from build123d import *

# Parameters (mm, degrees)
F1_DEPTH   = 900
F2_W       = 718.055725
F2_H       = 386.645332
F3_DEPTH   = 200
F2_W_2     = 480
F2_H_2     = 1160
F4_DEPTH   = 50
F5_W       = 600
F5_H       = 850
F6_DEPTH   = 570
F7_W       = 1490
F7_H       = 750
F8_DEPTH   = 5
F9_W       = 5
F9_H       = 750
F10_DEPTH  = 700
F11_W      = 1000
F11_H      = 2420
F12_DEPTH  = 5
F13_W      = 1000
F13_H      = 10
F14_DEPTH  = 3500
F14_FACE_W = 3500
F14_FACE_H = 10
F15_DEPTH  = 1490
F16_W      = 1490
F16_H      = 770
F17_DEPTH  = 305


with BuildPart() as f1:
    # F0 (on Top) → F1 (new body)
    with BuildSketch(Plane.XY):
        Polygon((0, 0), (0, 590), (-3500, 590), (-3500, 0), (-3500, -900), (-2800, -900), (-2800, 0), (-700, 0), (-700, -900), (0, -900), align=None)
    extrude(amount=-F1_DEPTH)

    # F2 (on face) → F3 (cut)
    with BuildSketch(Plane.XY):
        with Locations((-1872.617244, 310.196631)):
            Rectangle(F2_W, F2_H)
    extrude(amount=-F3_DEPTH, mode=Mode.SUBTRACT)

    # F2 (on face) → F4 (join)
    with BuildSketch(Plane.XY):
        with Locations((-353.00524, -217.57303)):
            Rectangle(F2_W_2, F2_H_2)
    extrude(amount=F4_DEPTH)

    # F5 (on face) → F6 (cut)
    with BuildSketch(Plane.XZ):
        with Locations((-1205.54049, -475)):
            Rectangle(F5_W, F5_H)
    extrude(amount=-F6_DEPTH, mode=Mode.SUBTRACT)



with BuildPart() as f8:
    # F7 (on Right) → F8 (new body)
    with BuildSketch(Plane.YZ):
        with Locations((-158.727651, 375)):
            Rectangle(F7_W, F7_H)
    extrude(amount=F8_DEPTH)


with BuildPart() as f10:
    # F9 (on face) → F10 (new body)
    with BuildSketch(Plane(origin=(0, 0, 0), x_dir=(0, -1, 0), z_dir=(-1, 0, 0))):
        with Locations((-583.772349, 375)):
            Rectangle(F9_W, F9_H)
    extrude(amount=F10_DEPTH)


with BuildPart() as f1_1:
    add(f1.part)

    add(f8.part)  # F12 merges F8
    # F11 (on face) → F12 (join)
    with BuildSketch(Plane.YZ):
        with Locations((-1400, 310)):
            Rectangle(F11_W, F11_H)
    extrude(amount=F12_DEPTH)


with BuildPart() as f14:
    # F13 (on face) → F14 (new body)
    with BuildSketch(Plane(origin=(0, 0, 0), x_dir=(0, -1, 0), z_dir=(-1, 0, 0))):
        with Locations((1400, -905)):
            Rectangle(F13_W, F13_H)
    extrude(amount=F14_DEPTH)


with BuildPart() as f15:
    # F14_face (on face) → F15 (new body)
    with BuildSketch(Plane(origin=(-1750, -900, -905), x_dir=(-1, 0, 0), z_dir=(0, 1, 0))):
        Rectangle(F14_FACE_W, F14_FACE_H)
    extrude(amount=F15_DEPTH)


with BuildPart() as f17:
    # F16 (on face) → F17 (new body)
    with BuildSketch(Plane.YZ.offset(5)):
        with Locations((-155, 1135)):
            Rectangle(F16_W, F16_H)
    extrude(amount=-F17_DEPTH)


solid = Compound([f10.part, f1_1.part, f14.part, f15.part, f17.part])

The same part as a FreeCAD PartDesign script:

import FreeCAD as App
import Part
import Sketcher

doc = App.newDocument("Part")
params = doc.addObject("Spreadsheet::Sheet", "Params")
for row, (alias, value) in enumerate([
    ("sketch1_width", "3500 mm"),
    ("sketch1_width2", "700 mm"),
    ("sketch1_height", "1490 mm"),
    ("sketch1_height2", "900 mm"),
    ("pad1_length", "900 mm"),
    ("pocket1_length", "200 mm"),
    ("sketch3_width", "480 mm"),
    ("sketch3_height", "1160 mm"),
    ("pad2_length", "50 mm"),
    ("sketch4_width", "600 mm"),
    ("sketch4_height", "850 mm"),
    ("pocket2_length", "570 mm"),
    ("sketch5_width", "1490 mm"),
    ("sketch5_height", "750 mm"),
    ("pad3_length", "5 mm"),
    ("sketch6_width", "5 mm"),
    ("sketch6_height", "750 mm"),
    ("pad4_length", "700 mm"),
    ("sketch7_width", "1000 mm"),
    ("sketch7_height", "2420 mm"),
    ("pad5_length", "5 mm"),
    ("sketch8_width", "1000 mm"),
    ("sketch8_height", "10 mm"),
    ("pad6_length", "3500 mm"),
    ("sketch9_width", "3500 mm"),
    ("sketch9_height", "10 mm"),
    ("pad7_length", "1490 mm"),
    ("sketch10_width", "1490 mm"),
    ("sketch10_height", "770 mm"),
    ("pad8_length", "305 mm"),
], start=1):
    params.set(f"A{row}", alias)
    params.set(f"B{row}", "=" + value)
    params.setAlias(f"B{row}", alias)

body = doc.addObject("PartDesign::Body", "Body")

sketch1 = doc.addObject("Sketcher::SketchObject", "Sketch")
body.addObject(sketch1)
sketch1.AttachmentSupport = (doc.XY_Plane, [""])
sketch1.MapMode = "FlatFace"
sketch1.addGeometry([
    Part.LineSegment(App.Vector(0, 590, 0), App.Vector(-3500, 590, 0)),
    Part.LineSegment(App.Vector(-3500, 590, 0), App.Vector(-3500, -900, 0)),
    Part.LineSegment(App.Vector(-3500, -900, 0), App.Vector(-2800, -900, 0)),
    Part.LineSegment(App.Vector(-2800, -900, 0), App.Vector(-2800, 0, 0)),
    Part.LineSegment(App.Vector(-2800, 0, 0), App.Vector(-700, 0, 0)),
    Part.LineSegment(App.Vector(-700, 0, 0), App.Vector(-700, -900, 0)),
    Part.LineSegment(App.Vector(-700, -900, 0), App.Vector(0, -900, 0)),
    Part.LineSegment(App.Vector(0, -900, 0), App.Vector(0, 590, 0)),
], False)
sketch1.addConstraint([
    Sketcher.Constraint("Coincident", 0, 2, 1, 1),
    Sketcher.Constraint("Coincident", 1, 2, 2, 1),
    Sketcher.Constraint("Coincident", 2, 2, 3, 1),
    Sketcher.Constraint("Coincident", 3, 2, 4, 1),
    Sketcher.Constraint("Coincident", 4, 2, 5, 1),
    Sketcher.Constraint("Coincident", 5, 2, 6, 1),
    Sketcher.Constraint("Coincident", 6, 2, 7, 1),
    Sketcher.Constraint("Coincident", 7, 2, 0, 1),
    Sketcher.Constraint("Horizontal", 0),
    Sketcher.Constraint("Vertical", 1),
    Sketcher.Constraint("Horizontal", 2),
    Sketcher.Constraint("Vertical", 3),
    Sketcher.Constraint("Horizontal", 4),
    Sketcher.Constraint("Vertical", 5),
    Sketcher.Constraint("Horizontal", 6),
    Sketcher.Constraint("Vertical", 7),
    Sketcher.Constraint("PointOnObject", 3, 2, -1),
    Sketcher.Constraint("PointOnObject", 6, 2, -2),
    Sketcher.Constraint("Horizontal", 2, 2, 5, 2),
    Sketcher.Constraint("Equal", 2, 6),
    Sketcher.Constraint("DistanceX", 0, 2, 0, 1, 3500.0),
    Sketcher.Constraint("DistanceX", 2, 1, 2, 2, 700.0),
    Sketcher.Constraint("DistanceY", 1, 2, 1, 1, 1490.0),
    Sketcher.Constraint("DistanceY", 3, 1, 3, 2, 900.0),
])
sketch1.setExpression("Constraints[20]", "Params.sketch1_width")
sketch1.setExpression("Constraints[21]", "Params.sketch1_width2")
sketch1.setExpression("Constraints[22]", "Params.sketch1_height")
sketch1.setExpression("Constraints[23]", "Params.sketch1_height2")
pad1 = doc.addObject("PartDesign::Pad", "Pad")
body.addObject(pad1)
pad1.Profile = sketch1
pad1.setExpression("Length", "Params.pad1_length")
pad1.Reversed = True

sketch2 = doc.addObject("Sketcher::SketchObject", "Sketch001")
body.addObject(sketch2)
sketch2.AttachmentSupport = (doc.XY_Plane, [""])
sketch2.MapMode = "FlatFace"
sketch2.addGeometry([
    Part.LineSegment(App.Vector(-2232, 504, 0), App.Vector(-2232, 117, 0)),
    Part.LineSegment(App.Vector(-2232, 117, 0), App.Vector(-1514, 117, 0)),
    Part.LineSegment(App.Vector(-1514, 117, 0), App.Vector(-1514, 504, 0)),
    Part.LineSegment(App.Vector(-1514, 504, 0), App.Vector(-2232, 504, 0)),
], False)
sketch2.addConstraint([
    Sketcher.Constraint("Coincident", 0, 2, 1, 1),
    Sketcher.Constraint("Coincident", 1, 2, 2, 1),
    Sketcher.Constraint("Coincident", 2, 2, 3, 1),
    Sketcher.Constraint("Coincident", 3, 2, 0, 1),
    Sketcher.Constraint("Vertical", 0),
    Sketcher.Constraint("Horizontal", 1),
    Sketcher.Constraint("Vertical", 2),
    Sketcher.Constraint("Horizontal", 3),
    Sketcher.Constraint("DistanceY", 0, 2, 0, 1, 386.645332),
    Sketcher.Constraint("DistanceX", 1, 1, 1, 2, 718.055725),
    Sketcher.Constraint("DistanceX", 1, 2, -1, 1, 1513.589381),
    Sketcher.Constraint("DistanceY", -1, 1, 0, 2, 116.873965),
])
pocket1 = doc.addObject("PartDesign::Pocket", "Pocket")
body.addObject(pocket1)
pocket1.Profile = sketch2
pocket1.setExpression("Length", "Params.pocket1_length")

sketch3 = doc.addObject("Sketcher::SketchObject", "Sketch002")
body.addObject(sketch3)
sketch3.AttachmentSupport = (doc.XY_Plane, [""])
sketch3.MapMode = "FlatFace"
sketch3.addGeometry([
    Part.LineSegment(App.Vector(-593, 362, 0), App.Vector(-593, -798, 0)),
    Part.LineSegment(App.Vector(-593, -798, 0), App.Vector(-113, -798, 0)),
    Part.LineSegment(App.Vector(-113, -798, 0), App.Vector(-113, 362, 0)),
    Part.LineSegment(App.Vector(-113, 362, 0), App.Vector(-593, 362, 0)),
], False)
sketch3.addConstraint([
    Sketcher.Constraint("Coincident", 0, 2, 1, 1),
    Sketcher.Constraint("Coincident", 1, 2, 2, 1),
    Sketcher.Constraint("Coincident", 2, 2, 3, 1),
    Sketcher.Constraint("Coincident", 3, 2, 0, 1),
    Sketcher.Constraint("Vertical", 0),
    Sketcher.Constraint("Horizontal", 1),
    Sketcher.Constraint("Vertical", 2),
    Sketcher.Constraint("Horizontal", 3),
    Sketcher.Constraint("DistanceX", 1, 1, 1, 2, 480.0),
    Sketcher.Constraint("DistanceY", 0, 2, 0, 1, 1160.0),
    Sketcher.Constraint("DistanceX", 0, 2, -1, 1, 593.00524),
    Sketcher.Constraint("DistanceY", 0, 2, -1, 1, 797.57303),
])
sketch3.setExpression("Constraints[8]", "Params.sketch3_width")
sketch3.setExpression("Constraints[9]", "Params.sketch3_height")
pad2 = doc.addObject("PartDesign::Pad", "Pad001")
body.addObject(pad2)
pad2.Profile = sketch3
pad2.setExpression("Length", "Params.pad2_length")

sketch4 = doc.addObject("Sketcher::SketchObject", "Sketch003")
body.addObject(sketch4)
sketch4.AttachmentSupport = (doc.XZ_Plane, [""])
sketch4.MapMode = "FlatFace"
sketch4.addGeometry([
    Part.LineSegment(App.Vector(-1506, -50, 0), App.Vector(-1506, -900, 0)),
    Part.LineSegment(App.Vector(-1506, -900, 0), App.Vector(-906, -900, 0)),
    Part.LineSegment(App.Vector(-906, -900, 0), App.Vector(-906, -50, 0)),
    Part.LineSegment(App.Vector(-906, -50, 0), App.Vector(-1506, -50, 0)),
], False)
sketch4.addConstraint([
    Sketcher.Constraint("Coincident", 0, 2, 1, 1),
    Sketcher.Constraint("Coincident", 1, 2, 2, 1),
    Sketcher.Constraint("Coincident", 2, 2, 3, 1),
    Sketcher.Constraint("Coincident", 3, 2, 0, 1),
    Sketcher.Constraint("Vertical", 0),
    Sketcher.Constraint("Horizontal", 1),
    Sketcher.Constraint("Vertical", 2),
    Sketcher.Constraint("Horizontal", 3),
    Sketcher.Constraint("DistanceX", 1, 1, 1, 2, 600.0),
    Sketcher.Constraint("DistanceY", 0, 2, 0, 1, 850.0),
    Sketcher.Constraint("DistanceY", 0, 2, -1, 1, 900.0),
    Sketcher.Constraint("DistanceX", 0, 2, -1, 1, 1505.54049),
])
sketch4.setExpression("Constraints[8]", "Params.sketch4_width")
sketch4.setExpression("Constraints[9]", "Params.sketch4_height")
pocket2 = doc.addObject("PartDesign::Pocket", "Pocket001")
body.addObject(pocket2)
pocket2.Profile = sketch4
pocket2.setExpression("Length", "Params.pocket2_length")
body2 = doc.addObject("PartDesign::Body", "Body001")

sketch5 = doc.addObject("Sketcher::SketchObject", "Sketch004")
body2.addObject(sketch5)
sketch5.AttachmentSupport = (doc.getObject("YZ_Plane001"), [""])
sketch5.MapMode = "FlatFace"
sketch5.addGeometry([
    Part.LineSegment(App.Vector(-904, 750, 0), App.Vector(-904, 0, 0)),
    Part.LineSegment(App.Vector(-904, 0, 0), App.Vector(586, 0, 0)),
    Part.LineSegment(App.Vector(586, 0, 0), App.Vector(586, 750, 0)),
    Part.LineSegment(App.Vector(586, 750, 0), App.Vector(-904, 750, 0)),
], False)
sketch5.addConstraint([
    Sketcher.Constraint("Coincident", 0, 2, 1, 1),
    Sketcher.Constraint("Coincident", 1, 2, 2, 1),
    Sketcher.Constraint("Coincident", 2, 2, 3, 1),
    Sketcher.Constraint("Coincident", 3, 2, 0, 1),
    Sketcher.Constraint("Vertical", 0),
    Sketcher.Constraint("Horizontal", 1),
    Sketcher.Constraint("Vertical", 2),
    Sketcher.Constraint("Horizontal", 3),
    Sketcher.Constraint("PointOnObject", 0, 2, -1),
    Sketcher.Constraint("DistanceX", 1, 1, 1, 2, 1490.0),
    Sketcher.Constraint("DistanceY", 0, 2, 0, 1, 750.0),
    Sketcher.Constraint("DistanceX", 0, 2, -1, 1, 903.727651),
])
sketch5.setExpression("Constraints[9]", "Params.sketch5_width")
sketch5.setExpression("Constraints[10]", "Params.sketch5_height")
pad3 = doc.addObject("PartDesign::Pad", "Pad002")
body2.addObject(pad3)
pad3.Profile = sketch5
pad3.setExpression("Length", "Params.pad3_length")
body3 = doc.addObject("PartDesign::Body", "Body002")

sketch6 = doc.addObject("Sketcher::SketchObject", "Sketch005")
body3.addObject(sketch6)
sketch6.AttachmentSupport = (doc.getObject("YZ_Plane002"), [""])
sketch6.MapMode = "FlatFace"
sketch6.addGeometry([
    Part.LineSegment(App.Vector(586, 750, 0), App.Vector(586, 0, 0)),
    Part.LineSegment(App.Vector(586, 0, 0), App.Vector(581, 0, 0)),
    Part.LineSegment(App.Vector(581, 0, 0), App.Vector(581, 750, 0)),
    Part.LineSegment(App.Vector(581, 750, 0), App.Vector(586, 750, 0)),
], False)
sketch6.addConstraint([
    Sketcher.Constraint("Coincident", 0, 2, 1, 1),
    Sketcher.Constraint("Coincident", 1, 2, 2, 1),
    Sketcher.Constraint("Coincident", 2, 2, 3, 1),
    Sketcher.Constraint("Coincident", 3, 2, 0, 1),
    Sketcher.Constraint("Vertical", 0),
    Sketcher.Constraint("Horizontal", 1),
    Sketcher.Constraint("Vertical", 2),
    Sketcher.Constraint("Horizontal", 3),
    Sketcher.Constraint("PointOnObject", 0, 2, -1),
    Sketcher.Constraint("DistanceX", 1, 2, 1, 1, 5.0),
    Sketcher.Constraint("DistanceY", 0, 2, 0, 1, 750.0),
    Sketcher.Constraint("DistanceX", -1, 1, 0, 2, 586.272349),
])
sketch6.setExpression("Constraints[9]", "Params.sketch6_width")
sketch6.setExpression("Constraints[10]", "Params.sketch6_height")
pad4 = doc.addObject("PartDesign::Pad", "Pad003")
body3.addObject(pad4)
pad4.Profile = sketch6
pad4.setExpression("Length", "Params.pad4_length")
pad4.Reversed = True
body.AllowCompound = True
doc.recompute()

boolean = doc.addObject("PartDesign::Boolean", "Boolean")
body.addObject(boolean)
boolean.Type = "Fuse"
boolean.addObjects([body2])

sketch7 = doc.addObject("Sketcher::SketchObject", "Sketch006")
body.addObject(sketch7)
sketch7.AttachmentSupport = (doc.YZ_Plane, [""])
sketch7.MapMode = "FlatFace"
sketch7.addGeometry([
    Part.LineSegment(App.Vector(-1900, 1520, 0), App.Vector(-1900, -900, 0)),
    Part.LineSegment(App.Vector(-1900, -900, 0), App.Vector(-900, -900, 0)),
    Part.LineSegment(App.Vector(-900, -900, 0), App.Vector(-900, 1520, 0)),
    Part.LineSegment(App.Vector(-900, 1520, 0), App.Vector(-1900, 1520, 0)),
], False)
sketch7.addConstraint([
    Sketcher.Constraint("Coincident", 0, 2, 1, 1),
    Sketcher.Constraint("Coincident", 1, 2, 2, 1),
    Sketcher.Constraint("Coincident", 2, 2, 3, 1),
    Sketcher.Constraint("Coincident", 3, 2, 0, 1),
    Sketcher.Constraint("Vertical", 0),
    Sketcher.Constraint("Horizontal", 1),
    Sketcher.Constraint("Vertical", 2),
    Sketcher.Constraint("Horizontal", 3),
    Sketcher.Constraint("DistanceX", 1, 1, 1, 2, 1000.0),
    Sketcher.Constraint("DistanceY", 0, 2, 0, 1, 2420.0),
    Sketcher.Constraint("DistanceX", 0, 2, -1, 1, 1900.0),
    Sketcher.Constraint("DistanceY", 0, 2, -1, 1, 900.0),
])
sketch7.setExpression("Constraints[8]", "Params.sketch7_width")
sketch7.setExpression("Constraints[9]", "Params.sketch7_height")
pad5 = doc.addObject("PartDesign::Pad", "Pad004")
body.addObject(pad5)
pad5.Profile = sketch7
pad5.setExpression("Length", "Params.pad5_length")
body4 = doc.addObject("PartDesign::Body", "Body003")

sketch8 = doc.addObject("Sketcher::SketchObject", "Sketch007")
body4.addObject(sketch8)
sketch8.AttachmentSupport = (doc.getObject("YZ_Plane003"), [""])
sketch8.MapMode = "FlatFace"
sketch8.addGeometry([
    Part.LineSegment(App.Vector(-900, -900, 0), App.Vector(-900, -910, 0)),
    Part.LineSegment(App.Vector(-900, -910, 0), App.Vector(-1900, -910, 0)),
    Part.LineSegment(App.Vector(-1900, -910, 0), App.Vector(-1900, -900, 0)),
    Part.LineSegment(App.Vector(-1900, -900, 0), App.Vector(-900, -900, 0)),
], False)
sketch8.addConstraint([
    Sketcher.Constraint("Coincident", 0, 2, 1, 1),
    Sketcher.Constraint("Coincident", 1, 2, 2, 1),
    Sketcher.Constraint("Coincident", 2, 2, 3, 1),
    Sketcher.Constraint("Coincident", 3, 2, 0, 1),
    Sketcher.Constraint("Vertical", 0),
    Sketcher.Constraint("Horizontal", 1),
    Sketcher.Constraint("Vertical", 2),
    Sketcher.Constraint("Horizontal", 3),
    Sketcher.Constraint("DistanceX", 1, 2, 1, 1, 1000.0),
    Sketcher.Constraint("DistanceY", 0, 2, 0, 1, 10.0),
    Sketcher.Constraint("DistanceX", 0, 2, -1, 1, 900.0),
    Sketcher.Constraint("DistanceY", 0, 2, -1, 1, 910.0),
])
sketch8.setExpression("Constraints[8]", "Params.sketch8_width")
sketch8.setExpression("Constraints[9]", "Params.sketch8_height")
pad6 = doc.addObject("PartDesign::Pad", "Pad005")
body4.addObject(pad6)
pad6.Profile = sketch8
pad6.setExpression("Length", "Params.pad6_length")
pad6.Reversed = True
body5 = doc.addObject("PartDesign::Body", "Body004")

sketch9 = doc.addObject("Sketcher::SketchObject", "Sketch008")
body5.addObject(sketch9)
sketch9.AttachmentSupport = (doc.getObject("XZ_Plane004"), [""])
sketch9.MapMode = "FlatFace"
sketch9.AttachmentOffset = App.Placement(App.Vector(0, 0, 900), App.Rotation())
sketch9.addGeometry([
    Part.LineSegment(App.Vector(0, -900, 0), App.Vector(0, -910, 0)),
    Part.LineSegment(App.Vector(0, -910, 0), App.Vector(-3500, -910, 0)),
    Part.LineSegment(App.Vector(-3500, -910, 0), App.Vector(-3500, -900, 0)),
    Part.LineSegment(App.Vector(-3500, -900, 0), App.Vector(0, -900, 0)),
], False)
sketch9.addConstraint([
    Sketcher.Constraint("Coincident", 0, 2, 1, 1),
    Sketcher.Constraint("Coincident", 1, 2, 2, 1),
    Sketcher.Constraint("Coincident", 2, 2, 3, 1),
    Sketcher.Constraint("Coincident", 3, 2, 0, 1),
    Sketcher.Constraint("Vertical", 0),
    Sketcher.Constraint("Horizontal", 1),
    Sketcher.Constraint("Vertical", 2),
    Sketcher.Constraint("Horizontal", 3),
    Sketcher.Constraint("PointOnObject", 0, 2, -2),
    Sketcher.Constraint("DistanceX", 1, 2, 1, 1, 3500.0),
    Sketcher.Constraint("DistanceY", 0, 2, 0, 1, 10.0),
    Sketcher.Constraint("DistanceY", 0, 2, -1, 1, 910.0),
])
sketch9.setExpression("Constraints[9]", "Params.sketch9_width")
sketch9.setExpression("Constraints[10]", "Params.sketch9_height")
pad7 = doc.addObject("PartDesign::Pad", "Pad006")
body5.addObject(pad7)
pad7.Profile = sketch9
pad7.setExpression("Length", "Params.pad7_length")
pad7.Reversed = True
body6 = doc.addObject("PartDesign::Body", "Body005")

sketch10 = doc.addObject("Sketcher::SketchObject", "Sketch009")
body6.addObject(sketch10)
sketch10.AttachmentSupport = (doc.getObject("YZ_Plane005"), [""])
sketch10.MapMode = "FlatFace"
sketch10.AttachmentOffset = App.Placement(App.Vector(0, 0, 5), App.Rotation())
sketch10.addGeometry([
    Part.LineSegment(App.Vector(-900, 1520, 0), App.Vector(-900, 750, 0)),
    Part.LineSegment(App.Vector(-900, 750, 0), App.Vector(590, 750, 0)),
    Part.LineSegment(App.Vector(590, 750, 0), App.Vector(590, 1520, 0)),
    Part.LineSegment(App.Vector(590, 1520, 0), App.Vector(-900, 1520, 0)),
], False)
sketch10.addConstraint([
    Sketcher.Constraint("Coincident", 0, 2, 1, 1),
    Sketcher.Constraint("Coincident", 1, 2, 2, 1),
    Sketcher.Constraint("Coincident", 2, 2, 3, 1),
    Sketcher.Constraint("Coincident", 3, 2, 0, 1),
    Sketcher.Constraint("Vertical", 0),
    Sketcher.Constraint("Horizontal", 1),
    Sketcher.Constraint("Vertical", 2),
    Sketcher.Constraint("Horizontal", 3),
    Sketcher.Constraint("DistanceX", 1, 1, 1, 2, 1490.0),
    Sketcher.Constraint("DistanceY", 0, 2, 0, 1, 770.0),
    Sketcher.Constraint("DistanceX", 0, 2, -1, 1, 900.0),
    Sketcher.Constraint("DistanceY", -1, 1, 0, 2, 750.0),
])
sketch10.setExpression("Constraints[8]", "Params.sketch10_width")
sketch10.setExpression("Constraints[9]", "Params.sketch10_height")
pad8 = doc.addObject("PartDesign::Pad", "Pad007")
body6.addObject(pad8)
pad8.Profile = sketch10
pad8.setExpression("Length", "Params.pad8_length")
pad8.Reversed = True

doc.recompute()
